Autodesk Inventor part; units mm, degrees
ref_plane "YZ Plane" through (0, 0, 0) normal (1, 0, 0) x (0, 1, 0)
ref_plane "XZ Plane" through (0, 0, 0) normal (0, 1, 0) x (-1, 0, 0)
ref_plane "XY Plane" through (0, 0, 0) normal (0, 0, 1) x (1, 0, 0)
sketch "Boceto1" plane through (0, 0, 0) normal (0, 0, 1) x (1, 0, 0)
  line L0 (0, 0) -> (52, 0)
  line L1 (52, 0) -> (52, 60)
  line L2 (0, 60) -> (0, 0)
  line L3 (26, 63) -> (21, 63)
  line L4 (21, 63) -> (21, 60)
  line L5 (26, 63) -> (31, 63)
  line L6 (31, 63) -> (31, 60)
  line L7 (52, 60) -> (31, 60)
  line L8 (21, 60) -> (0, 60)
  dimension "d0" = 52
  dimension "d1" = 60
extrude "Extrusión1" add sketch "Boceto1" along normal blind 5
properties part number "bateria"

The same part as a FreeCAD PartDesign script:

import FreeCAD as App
import Part
import Sketcher

V = App.Vector

doc = App.newDocument("Part")
body = doc.addObject("PartDesign::Body", "Body")

# Sketch on XY plane
sketch1 = body.newObject("Sketcher::SketchObject", "Sketch")
sketch1.AttachmentSupport = (doc.getObject("XY_Plane"), [""])
sketch1.MapMode = "FlatFace"
sketch1.addGeometry(Part.LineSegment(V(0, 60, 0), V(0, 0, 0)), False)
sketch1.addGeometry(Part.LineSegment(V(0, 0, 0), V(52, 0, 0)), False)
sketch1.addGeometry(Part.LineSegment(V(52, 0, 0), V(52, 60, 0)), False)
sketch1.addGeometry(Part.LineSegment(V(52, 60, 0), V(31, 60, 0)), False)
sketch1.addGeometry(Part.LineSegment(V(31, 60, 0), V(31, 63, 0)), False)
sketch1.addGeometry(Part.LineSegment(V(31, 63, 0), V(21, 63, 0)), False)
sketch1.addGeometry(Part.LineSegment(V(21, 63, 0), V(21, 60, 0)), False)
sketch1.addGeometry(Part.LineSegment(V(21, 60, 0), V(0, 60, 0)), False)
sketch1.addConstraint(Sketcher.Constraint("Coincident", 0, 2, 1, 1))
sketch1.addConstraint(Sketcher.Constraint("Coincident", 1, 2, 2, 1))
sketch1.addConstraint(Sketcher.Constraint("Coincident", 2, 2, 3, 1))
sketch1.addConstraint(Sketcher.Constraint("Coincident", 3, 2, 4, 1))
sketch1.addConstraint(Sketcher.Constraint("Coincident", 4, 2, 5, 1))
sketch1.addConstraint(Sketcher.Constraint("Coincident", 5, 2, 6, 1))
sketch1.addConstraint(Sketcher.Constraint("Coincident", 6, 2, 7, 1))
sketch1.addConstraint(Sketcher.Constraint("Coincident", 7, 2, 0, 1))
sketch1.addConstraint(Sketcher.Constraint("Vertical", 0))
sketch1.addConstraint(Sketcher.Constraint("Horizontal", 1))
sketch1.addConstraint(Sketcher.Constraint("Vertical", 2))
sketch1.addConstraint(Sketcher.Constraint("Horizontal", 3))
sketch1.addConstraint(Sketcher.Constraint("Vertical", 4))
sketch1.addConstraint(Sketcher.Constraint("Horizontal", 5))
sketch1.addConstraint(Sketcher.Constraint("Vertical", 6))
sketch1.addConstraint(Sketcher.Constraint("Horizontal", 7))
sketch1.addConstraint(Sketcher.Constraint("Coincident", 0, 2, -1, 1))
sketch1.addConstraint(Sketcher.Constraint("Horizontal", 3, 2, 6, 2))
sketch1.addConstraint(Sketcher.Constraint("Equal", 3, 7))
sketch1.addConstraint(Sketcher.Constraint("DistanceX", 1, 1, 1, 2, 52.0))
sketch1.addConstraint(Sketcher.Constraint("DistanceY", 0, 2, 0, 1, 60.0))
sketch1.addConstraint(Sketcher.Constraint("DistanceX", 3, 2, 3, 1, 21.0))
sketch1.addConstraint(Sketcher.Constraint("DistanceY", 4, 1, 4, 2, 3.0))
pad1 = body.newObject("PartDesign::Pad", "Pad")
pad1.Profile = sketch1
pad1.Length = 5

doc.recompute()
